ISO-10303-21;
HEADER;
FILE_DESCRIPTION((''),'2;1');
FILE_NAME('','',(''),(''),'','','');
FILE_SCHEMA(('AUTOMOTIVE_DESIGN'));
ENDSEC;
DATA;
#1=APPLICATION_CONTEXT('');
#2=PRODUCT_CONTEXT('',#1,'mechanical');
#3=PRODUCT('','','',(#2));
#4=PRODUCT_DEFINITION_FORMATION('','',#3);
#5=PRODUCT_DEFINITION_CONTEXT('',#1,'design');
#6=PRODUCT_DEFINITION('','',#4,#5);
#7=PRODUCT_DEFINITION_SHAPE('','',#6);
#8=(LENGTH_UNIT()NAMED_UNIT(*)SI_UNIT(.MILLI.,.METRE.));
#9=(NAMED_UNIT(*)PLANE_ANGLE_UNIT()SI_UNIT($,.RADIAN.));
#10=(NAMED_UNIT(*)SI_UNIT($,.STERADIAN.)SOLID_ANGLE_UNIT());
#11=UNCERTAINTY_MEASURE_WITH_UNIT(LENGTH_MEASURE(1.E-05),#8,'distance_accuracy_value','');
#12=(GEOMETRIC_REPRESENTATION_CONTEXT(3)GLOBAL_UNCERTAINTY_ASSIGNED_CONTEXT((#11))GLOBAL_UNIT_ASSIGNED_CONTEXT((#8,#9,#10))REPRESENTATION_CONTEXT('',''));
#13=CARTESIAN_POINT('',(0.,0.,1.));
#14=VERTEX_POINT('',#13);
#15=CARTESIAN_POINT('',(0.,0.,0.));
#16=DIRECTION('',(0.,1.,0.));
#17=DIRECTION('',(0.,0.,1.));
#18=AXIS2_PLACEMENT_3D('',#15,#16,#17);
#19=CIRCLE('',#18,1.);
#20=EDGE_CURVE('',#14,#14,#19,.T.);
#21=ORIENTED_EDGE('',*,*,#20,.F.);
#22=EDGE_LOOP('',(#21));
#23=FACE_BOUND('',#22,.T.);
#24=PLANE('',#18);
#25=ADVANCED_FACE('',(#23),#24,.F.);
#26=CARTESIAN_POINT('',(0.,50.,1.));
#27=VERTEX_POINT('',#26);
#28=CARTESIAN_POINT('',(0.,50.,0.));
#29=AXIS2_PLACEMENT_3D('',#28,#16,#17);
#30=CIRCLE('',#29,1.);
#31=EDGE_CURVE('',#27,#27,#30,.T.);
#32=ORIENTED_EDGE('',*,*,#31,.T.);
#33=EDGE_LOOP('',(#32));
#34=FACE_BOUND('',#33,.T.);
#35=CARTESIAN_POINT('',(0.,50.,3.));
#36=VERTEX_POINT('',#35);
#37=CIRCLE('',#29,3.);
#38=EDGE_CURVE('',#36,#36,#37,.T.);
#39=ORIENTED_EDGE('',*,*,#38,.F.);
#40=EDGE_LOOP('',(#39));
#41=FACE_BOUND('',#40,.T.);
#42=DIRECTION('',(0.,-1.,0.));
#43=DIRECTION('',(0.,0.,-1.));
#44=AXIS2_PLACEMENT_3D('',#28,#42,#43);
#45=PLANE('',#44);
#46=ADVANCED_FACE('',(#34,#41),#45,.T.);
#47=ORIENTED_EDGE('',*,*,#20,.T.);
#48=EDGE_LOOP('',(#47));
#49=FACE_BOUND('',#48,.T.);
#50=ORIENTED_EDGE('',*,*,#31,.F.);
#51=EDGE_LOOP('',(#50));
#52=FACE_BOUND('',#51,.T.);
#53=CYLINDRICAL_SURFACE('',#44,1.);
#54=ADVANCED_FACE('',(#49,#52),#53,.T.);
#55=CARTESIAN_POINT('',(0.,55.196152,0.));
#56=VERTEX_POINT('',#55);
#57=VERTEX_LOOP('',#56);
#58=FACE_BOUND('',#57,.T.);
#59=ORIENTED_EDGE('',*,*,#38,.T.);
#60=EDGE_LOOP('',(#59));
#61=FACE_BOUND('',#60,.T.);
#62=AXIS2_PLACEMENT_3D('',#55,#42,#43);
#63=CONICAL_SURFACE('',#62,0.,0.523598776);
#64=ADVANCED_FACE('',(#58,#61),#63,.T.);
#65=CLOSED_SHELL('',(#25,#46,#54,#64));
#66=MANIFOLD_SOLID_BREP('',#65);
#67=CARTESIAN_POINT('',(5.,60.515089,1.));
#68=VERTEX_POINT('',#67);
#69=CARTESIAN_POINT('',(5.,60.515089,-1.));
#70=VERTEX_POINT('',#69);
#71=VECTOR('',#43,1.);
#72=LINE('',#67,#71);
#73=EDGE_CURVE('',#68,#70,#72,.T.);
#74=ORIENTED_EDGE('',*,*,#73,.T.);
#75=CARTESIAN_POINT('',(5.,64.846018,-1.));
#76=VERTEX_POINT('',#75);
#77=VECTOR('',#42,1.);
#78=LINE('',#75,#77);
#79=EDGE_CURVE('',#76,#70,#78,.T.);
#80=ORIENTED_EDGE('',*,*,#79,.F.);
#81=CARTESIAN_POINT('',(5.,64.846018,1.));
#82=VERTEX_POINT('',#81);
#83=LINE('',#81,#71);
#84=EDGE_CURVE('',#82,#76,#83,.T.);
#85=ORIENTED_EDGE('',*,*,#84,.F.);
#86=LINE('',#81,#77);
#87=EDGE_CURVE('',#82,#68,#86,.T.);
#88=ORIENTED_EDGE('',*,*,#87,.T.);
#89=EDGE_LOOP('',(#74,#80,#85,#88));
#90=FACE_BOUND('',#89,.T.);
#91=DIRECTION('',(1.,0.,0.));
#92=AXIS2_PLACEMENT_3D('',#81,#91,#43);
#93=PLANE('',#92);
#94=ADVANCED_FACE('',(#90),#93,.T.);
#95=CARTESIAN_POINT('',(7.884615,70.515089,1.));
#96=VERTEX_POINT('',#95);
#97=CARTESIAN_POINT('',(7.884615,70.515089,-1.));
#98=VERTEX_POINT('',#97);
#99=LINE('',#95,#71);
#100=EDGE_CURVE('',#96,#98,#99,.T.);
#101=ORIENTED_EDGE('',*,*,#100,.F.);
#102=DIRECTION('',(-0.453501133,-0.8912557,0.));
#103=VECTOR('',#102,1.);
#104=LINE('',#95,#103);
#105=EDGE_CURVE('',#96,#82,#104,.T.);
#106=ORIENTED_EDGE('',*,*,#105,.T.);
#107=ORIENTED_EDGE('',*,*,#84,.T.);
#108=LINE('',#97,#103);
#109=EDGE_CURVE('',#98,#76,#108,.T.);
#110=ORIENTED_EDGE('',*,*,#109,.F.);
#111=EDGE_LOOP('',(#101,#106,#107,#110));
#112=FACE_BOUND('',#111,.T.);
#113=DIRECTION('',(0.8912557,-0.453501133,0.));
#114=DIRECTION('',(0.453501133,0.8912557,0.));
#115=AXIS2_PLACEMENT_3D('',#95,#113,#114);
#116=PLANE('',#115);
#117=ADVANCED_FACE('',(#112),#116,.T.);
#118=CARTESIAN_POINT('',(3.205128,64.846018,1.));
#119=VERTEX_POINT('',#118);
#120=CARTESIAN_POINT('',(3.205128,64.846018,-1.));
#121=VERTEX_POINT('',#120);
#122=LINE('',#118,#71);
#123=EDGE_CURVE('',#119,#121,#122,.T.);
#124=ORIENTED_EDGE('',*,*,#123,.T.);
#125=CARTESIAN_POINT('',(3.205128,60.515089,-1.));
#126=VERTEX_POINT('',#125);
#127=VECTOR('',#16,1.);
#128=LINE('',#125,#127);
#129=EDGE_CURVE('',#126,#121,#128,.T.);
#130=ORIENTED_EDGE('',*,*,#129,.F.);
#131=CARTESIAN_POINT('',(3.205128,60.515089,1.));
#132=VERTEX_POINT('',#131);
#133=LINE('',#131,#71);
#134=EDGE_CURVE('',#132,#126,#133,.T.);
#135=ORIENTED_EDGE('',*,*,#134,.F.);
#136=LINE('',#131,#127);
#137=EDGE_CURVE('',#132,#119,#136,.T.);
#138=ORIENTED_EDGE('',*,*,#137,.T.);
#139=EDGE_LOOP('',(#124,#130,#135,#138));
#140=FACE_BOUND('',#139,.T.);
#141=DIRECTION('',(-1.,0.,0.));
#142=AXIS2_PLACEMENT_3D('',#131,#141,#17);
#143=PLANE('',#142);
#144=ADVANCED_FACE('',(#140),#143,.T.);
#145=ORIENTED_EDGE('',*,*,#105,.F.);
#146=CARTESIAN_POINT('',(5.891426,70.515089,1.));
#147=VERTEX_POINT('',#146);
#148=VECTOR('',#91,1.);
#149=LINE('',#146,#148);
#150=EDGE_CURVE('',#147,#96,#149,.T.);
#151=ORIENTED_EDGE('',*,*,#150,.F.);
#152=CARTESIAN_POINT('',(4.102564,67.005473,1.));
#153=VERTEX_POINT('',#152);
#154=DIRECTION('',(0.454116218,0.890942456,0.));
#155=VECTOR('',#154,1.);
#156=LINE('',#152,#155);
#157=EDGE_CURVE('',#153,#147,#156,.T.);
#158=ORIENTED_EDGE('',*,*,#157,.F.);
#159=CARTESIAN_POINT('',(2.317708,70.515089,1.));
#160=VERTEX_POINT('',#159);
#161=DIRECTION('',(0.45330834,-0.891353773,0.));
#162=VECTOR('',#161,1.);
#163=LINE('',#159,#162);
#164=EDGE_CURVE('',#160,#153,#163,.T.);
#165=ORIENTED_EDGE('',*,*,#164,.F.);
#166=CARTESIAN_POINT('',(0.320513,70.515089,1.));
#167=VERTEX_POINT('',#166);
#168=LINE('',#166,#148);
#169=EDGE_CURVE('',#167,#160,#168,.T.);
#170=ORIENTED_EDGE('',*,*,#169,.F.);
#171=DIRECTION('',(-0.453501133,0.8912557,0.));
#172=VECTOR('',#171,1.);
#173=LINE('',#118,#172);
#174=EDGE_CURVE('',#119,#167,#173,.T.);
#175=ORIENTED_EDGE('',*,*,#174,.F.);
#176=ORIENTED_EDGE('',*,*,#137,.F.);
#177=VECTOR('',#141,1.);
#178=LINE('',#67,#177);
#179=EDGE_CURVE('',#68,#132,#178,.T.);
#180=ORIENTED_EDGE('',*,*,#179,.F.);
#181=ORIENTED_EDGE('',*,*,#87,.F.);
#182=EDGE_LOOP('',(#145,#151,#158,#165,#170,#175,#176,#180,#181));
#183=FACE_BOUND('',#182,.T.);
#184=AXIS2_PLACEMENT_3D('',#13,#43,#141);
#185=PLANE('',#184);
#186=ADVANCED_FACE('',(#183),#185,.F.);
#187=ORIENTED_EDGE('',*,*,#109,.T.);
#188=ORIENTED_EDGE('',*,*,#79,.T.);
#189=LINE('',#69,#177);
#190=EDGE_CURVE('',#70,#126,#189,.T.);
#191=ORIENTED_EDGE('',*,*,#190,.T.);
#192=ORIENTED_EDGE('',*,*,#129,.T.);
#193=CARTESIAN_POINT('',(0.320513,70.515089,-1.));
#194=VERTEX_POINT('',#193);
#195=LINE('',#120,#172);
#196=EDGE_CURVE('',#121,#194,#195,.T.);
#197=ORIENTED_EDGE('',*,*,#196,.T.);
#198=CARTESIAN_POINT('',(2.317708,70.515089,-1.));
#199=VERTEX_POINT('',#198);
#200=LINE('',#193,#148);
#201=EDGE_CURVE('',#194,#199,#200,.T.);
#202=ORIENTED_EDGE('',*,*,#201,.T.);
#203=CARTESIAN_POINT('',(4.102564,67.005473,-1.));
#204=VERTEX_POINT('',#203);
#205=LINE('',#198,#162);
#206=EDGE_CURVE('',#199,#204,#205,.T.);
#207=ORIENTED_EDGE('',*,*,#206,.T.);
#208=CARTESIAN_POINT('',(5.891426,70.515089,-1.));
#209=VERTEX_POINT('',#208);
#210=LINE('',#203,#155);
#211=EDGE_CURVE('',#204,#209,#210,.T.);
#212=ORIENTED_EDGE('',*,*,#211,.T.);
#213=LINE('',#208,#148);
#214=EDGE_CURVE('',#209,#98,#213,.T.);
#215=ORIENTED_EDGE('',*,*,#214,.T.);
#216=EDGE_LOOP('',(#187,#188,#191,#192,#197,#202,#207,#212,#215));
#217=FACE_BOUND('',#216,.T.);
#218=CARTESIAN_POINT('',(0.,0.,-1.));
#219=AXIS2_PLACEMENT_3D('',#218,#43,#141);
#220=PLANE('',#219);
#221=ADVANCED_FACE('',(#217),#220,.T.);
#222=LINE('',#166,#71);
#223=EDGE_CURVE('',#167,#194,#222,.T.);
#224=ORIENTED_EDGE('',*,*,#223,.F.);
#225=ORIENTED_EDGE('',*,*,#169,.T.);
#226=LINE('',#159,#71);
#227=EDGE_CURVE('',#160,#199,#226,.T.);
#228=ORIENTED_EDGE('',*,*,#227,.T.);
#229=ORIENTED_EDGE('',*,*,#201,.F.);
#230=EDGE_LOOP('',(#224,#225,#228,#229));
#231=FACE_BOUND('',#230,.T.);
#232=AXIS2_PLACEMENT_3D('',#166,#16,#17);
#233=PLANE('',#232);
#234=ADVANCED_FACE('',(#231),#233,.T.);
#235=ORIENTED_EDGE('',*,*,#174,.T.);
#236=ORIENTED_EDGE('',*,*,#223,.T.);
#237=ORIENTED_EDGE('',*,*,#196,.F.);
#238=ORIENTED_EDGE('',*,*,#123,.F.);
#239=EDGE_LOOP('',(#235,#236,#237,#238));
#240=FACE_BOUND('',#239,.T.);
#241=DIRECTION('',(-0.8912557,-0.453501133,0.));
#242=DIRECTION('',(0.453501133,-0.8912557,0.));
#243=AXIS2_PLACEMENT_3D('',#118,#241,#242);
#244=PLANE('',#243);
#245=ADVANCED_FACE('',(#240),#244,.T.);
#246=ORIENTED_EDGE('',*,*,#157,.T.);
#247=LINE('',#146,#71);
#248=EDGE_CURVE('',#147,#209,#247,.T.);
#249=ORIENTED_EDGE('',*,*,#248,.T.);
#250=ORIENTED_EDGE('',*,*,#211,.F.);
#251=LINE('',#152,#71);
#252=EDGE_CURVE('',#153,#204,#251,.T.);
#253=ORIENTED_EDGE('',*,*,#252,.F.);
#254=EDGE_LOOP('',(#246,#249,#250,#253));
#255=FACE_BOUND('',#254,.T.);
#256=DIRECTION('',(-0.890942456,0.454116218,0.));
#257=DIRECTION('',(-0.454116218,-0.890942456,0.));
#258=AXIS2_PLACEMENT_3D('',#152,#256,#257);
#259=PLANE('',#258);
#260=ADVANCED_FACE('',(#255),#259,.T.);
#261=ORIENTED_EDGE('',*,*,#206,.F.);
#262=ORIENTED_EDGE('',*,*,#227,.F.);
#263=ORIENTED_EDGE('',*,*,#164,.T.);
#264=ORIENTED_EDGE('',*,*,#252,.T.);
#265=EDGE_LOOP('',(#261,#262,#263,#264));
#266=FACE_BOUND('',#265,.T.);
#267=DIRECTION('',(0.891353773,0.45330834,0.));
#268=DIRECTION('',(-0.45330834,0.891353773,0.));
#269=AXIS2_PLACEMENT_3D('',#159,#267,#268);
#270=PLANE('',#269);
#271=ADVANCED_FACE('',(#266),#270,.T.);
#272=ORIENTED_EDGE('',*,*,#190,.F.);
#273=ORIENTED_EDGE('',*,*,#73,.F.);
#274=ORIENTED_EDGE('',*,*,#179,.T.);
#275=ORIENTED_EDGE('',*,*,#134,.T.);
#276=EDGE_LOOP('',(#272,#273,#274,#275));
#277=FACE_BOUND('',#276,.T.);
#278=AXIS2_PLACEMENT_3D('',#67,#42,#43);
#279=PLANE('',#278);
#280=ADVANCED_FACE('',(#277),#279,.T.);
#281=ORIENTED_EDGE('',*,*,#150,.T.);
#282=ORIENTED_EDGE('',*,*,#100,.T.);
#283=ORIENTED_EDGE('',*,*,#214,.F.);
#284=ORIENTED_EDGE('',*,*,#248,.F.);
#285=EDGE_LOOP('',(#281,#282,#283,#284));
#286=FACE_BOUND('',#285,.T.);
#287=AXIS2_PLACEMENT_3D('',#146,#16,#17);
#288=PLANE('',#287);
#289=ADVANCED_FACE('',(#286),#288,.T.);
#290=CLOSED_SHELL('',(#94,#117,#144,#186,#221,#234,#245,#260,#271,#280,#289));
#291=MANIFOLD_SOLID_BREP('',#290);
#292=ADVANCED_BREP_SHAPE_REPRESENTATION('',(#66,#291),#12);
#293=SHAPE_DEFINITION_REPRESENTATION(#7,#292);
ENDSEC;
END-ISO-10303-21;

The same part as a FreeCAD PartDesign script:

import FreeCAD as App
import Part
import Sketcher
Q = App.Units.Quantity

doc = App.newDocument("Part")
body = doc.addObject("PartDesign::Body", "Body")

# Sketch on XZ plane
sketch1 = body.newObject("Sketcher::SketchObject", "Sketch")
sketch1.AttachmentSupport = (doc.getObject("XZ_Plane"), [""])
sketch1.MapMode = "FlatFace"
sketch1.addGeometry(Part.Circle(App.Vector(0, 0, 0), App.Vector(0, 0, 1), 1), False)
sketch1.addConstraint([
    Sketcher.Constraint("Coincident", 0, 3, -1, 1),
    Sketcher.Constraint("Diameter", 0, 2.0),
])
pad1 = body.newObject("PartDesign::Pad", "Pad")
pad1.Profile = sketch1
pad1.Length = 50
pad1.Reversed = True

# Sketch on XY plane
sketch2 = body.newObject("Sketcher::SketchObject", "Sketch001")
sketch2.AttachmentSupport = (doc.getObject("XY_Plane"), [""])
sketch2.MapMode = "FlatFace"
sketch2.addGeometry([
    Part.LineSegment(App.Vector(-3, 50, 0), App.Vector(0, 50, 0)),
    Part.LineSegment(App.Vector(0, 50, 0), App.Vector(0, 55.2, 0)),
    Part.LineSegment(App.Vector(0, 55.2, 0), App.Vector(-3, 50, 0)),
], False)
sketch2.addConstraint([
    Sketcher.Constraint("Coincident", 0, 2, 1, 1),
    Sketcher.Constraint("Coincident", 1, 2, 2, 1),
    Sketcher.Constraint("Coincident", 2, 2, 0, 1),
    Sketcher.Constraint("Horizontal", 0),
    Sketcher.Constraint("Vertical", 1),
    Sketcher.Constraint("PointOnObject", 0, 2, -2),
    Sketcher.Constraint("DistanceX", 0, 1, 0, 2, 3.0),
    Sketcher.Constraint("Angle", 2, Q("-120 deg")),
    Sketcher.Constraint("DistanceY", -1, 1, 0, 2, 50.0),
])
revolution = body.newObject("PartDesign::Revolution", "Revolution")
revolution.Profile = sketch2
revolution.ReferenceAxis = (sketch2, ["V_Axis"])
revolution.Angle = 360
body2 = doc.addObject("PartDesign::Body", "Body001")

# Sketch on XY plane
sketch3 = body2.newObject("Sketcher::SketchObject", "Sketch002")
sketch3.AttachmentSupport = (doc.getObject("XY_Plane001"), [""])
sketch3.MapMode = "FlatFace"
sketch3.addGeometry([
    Part.LineSegment(App.Vector(2.3, 70.5, 0), App.Vector(0.3, 70.5, 0)),  # 0
    Part.LineSegment(App.Vector(0.3, 70.5, 0), App.Vector(3.2, 64.8, 0)),  # 1
    Part.LineSegment(App.Vector(3.2, 64.8, 0), App.Vector(3.2, 60.5, 0)),  # 2
    Part.LineSegment(App.Vector(3.2, 60.5, 0), App.Vector(5, 60.5, 0)),  # 3
    Part.LineSegment(App.Vector(5, 60.5, 0), App.Vector(5, 64.8, 0)),  # 4
    Part.LineSegment(App.Vector(5, 64.8, 0), App.Vector(7.9, 70.5, 0)),  # 5
    Part.LineSegment(App.Vector(7.9, 70.5, 0), App.Vector(5.9, 70.5, 0)),  # 6
    Part.LineSegment(App.Vector(5.9, 70.5, 0), App.Vector(4.1, 67, 0)),  # 7
    Part.LineSegment(App.Vector(4.1, 67, 0), App.Vector(2.3, 70.5, 0)),  # 8
], False)
sketch3.addConstraint([
    Sketcher.Constraint("Coincident", 0, 2, 1, 1),
    Sketcher.Constraint("Coincident", 1, 2, 2, 1),
    Sketcher.Constraint("Coincident", 2, 2, 3, 1),
    Sketcher.Constraint("Coincident", 3, 2, 4, 1),
    Sketcher.Constraint("Coincident", 4, 2, 5, 1),
    Sketcher.Constraint("Coincident", 5, 2, 6, 1),
    Sketcher.Constraint("Coincident", 6, 2, 7, 1),
    Sketcher.Constraint("Coincident", 7, 2, 8, 1),
    Sketcher.Constraint("Coincident", 8, 2, 0, 1),
    Sketcher.Constraint("Horizontal", 0),
    Sketcher.Constraint("Vertical", 2),
    Sketcher.Constraint("Horizontal", 3),
    Sketcher.Constraint("Vertical", 4),
    Sketcher.Constraint("Horizontal", 6),
    Sketcher.Constraint("Horizontal", 1, 2, 4, 2),
    Sketcher.Constraint("Horizontal", 0, 2, 5, 2),
    Sketcher.Constraint("Equal", 1, 5),
    Sketcher.Constraint("DistanceX", -1, 1, 3, 2, 5.0),
    Sketcher.Constraint("DistanceY", 2, 2, 0, 2, 10.0),
    Sketcher.Constraint("Distance", 8, 3.937399),
    Sketcher.Constraint("DistanceX", 3, 1, 3, 2, 1.794872),
    Sketcher.Constraint("DistanceX", 6, 2, 6, 1, 1.993189),
    Sketcher.Constraint("DistanceY", 2, 2, 2, 1, 4.330929),
    Sketcher.Constraint("DistanceX", 1, 2, 6, 2, 2.686298),
    Sketcher.Constraint("DistanceX", 0, 2, 0, 1, 1.997196),
    Sketcher.Constraint("DistanceY", -1, 1, 0, 2, 70.515089),
    Sketcher.Constraint("DistanceX", 0, 2, 7, 2, 3.782051),
])
pad2 = body2.newObject("PartDesign::Pad", "Pad001")
pad2.Profile = sketch3
pad2.Length = 2
pad2.Midplane = True

doc.recompute()
